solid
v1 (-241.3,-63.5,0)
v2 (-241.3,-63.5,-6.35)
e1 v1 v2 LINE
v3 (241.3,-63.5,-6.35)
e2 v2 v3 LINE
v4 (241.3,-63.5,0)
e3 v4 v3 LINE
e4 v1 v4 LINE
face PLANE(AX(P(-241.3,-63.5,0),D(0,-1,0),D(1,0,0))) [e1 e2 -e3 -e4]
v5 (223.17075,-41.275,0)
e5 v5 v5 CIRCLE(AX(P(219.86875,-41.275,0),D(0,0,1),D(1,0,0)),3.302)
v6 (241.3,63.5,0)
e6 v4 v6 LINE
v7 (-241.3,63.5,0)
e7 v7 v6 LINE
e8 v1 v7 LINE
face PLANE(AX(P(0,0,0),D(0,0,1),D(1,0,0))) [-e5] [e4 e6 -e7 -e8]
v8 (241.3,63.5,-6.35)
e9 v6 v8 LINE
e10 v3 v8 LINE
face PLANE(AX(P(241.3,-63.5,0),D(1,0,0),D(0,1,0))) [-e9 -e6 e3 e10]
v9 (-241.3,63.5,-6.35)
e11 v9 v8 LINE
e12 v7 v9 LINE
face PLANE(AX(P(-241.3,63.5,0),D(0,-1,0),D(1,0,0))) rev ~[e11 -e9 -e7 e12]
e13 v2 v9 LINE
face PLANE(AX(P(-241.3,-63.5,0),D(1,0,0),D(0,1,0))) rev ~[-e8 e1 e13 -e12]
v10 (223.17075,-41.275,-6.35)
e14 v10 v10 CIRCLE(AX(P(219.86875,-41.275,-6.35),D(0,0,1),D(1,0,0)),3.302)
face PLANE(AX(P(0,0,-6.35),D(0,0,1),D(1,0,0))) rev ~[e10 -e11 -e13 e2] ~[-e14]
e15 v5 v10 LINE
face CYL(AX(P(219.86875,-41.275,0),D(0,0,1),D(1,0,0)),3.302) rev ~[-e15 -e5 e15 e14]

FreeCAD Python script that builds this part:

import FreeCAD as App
import Part
import Sketcher
from FreeCAD import Vector
Q = App.Units.Quantity

doc = App.newDocument("Part")
body = doc.addObject("PartDesign::Body", "Body")

# Sketch on XY plane
sketch1 = body.newObject("Sketcher::SketchObject", "Sketch")
sketch1.AttachmentSupport = (doc.getObject("XY_Plane"), [""])
sketch1.MapMode = "FlatFace"
sketch1.addGeometry([
    Part.LineSegment(Vector(-241, 64, 0), Vector(-241, -64, 0)),
    Part.LineSegment(Vector(-241, -64, 0), Vector(241, -64, 0)),
    Part.LineSegment(Vector(241, -64, 0), Vector(241, 64, 0)),
    Part.LineSegment(Vector(241, 64, 0), Vector(-241, 64, 0)),
], False)
sketch1.addConstraint([
    Sketcher.Constraint("Coincident", 0, 2, 1, 1),
    Sketcher.Constraint("Coincident", 1, 2, 2, 1),
    Sketcher.Constraint("Coincident", 2, 2, 3, 1),
    Sketcher.Constraint("Coincident", 3, 2, 0, 1),
    Sketcher.Constraint("Vertical", 0),
    Sketcher.Constraint("Horizontal", 1),
    Sketcher.Constraint("Vertical", 2),
    Sketcher.Constraint("Horizontal", 3),
    Sketcher.Constraint("Symmetric", 0, 2, 2, 2, -1, 1),
    Sketcher.Constraint("DistanceX", 1, 1, 1, 2, Q("19 in")),
    Sketcher.Constraint("DistanceY", 0, 2, 0, 1, Q("5 in")),
])
pad1 = body.newObject("PartDesign::Pad", "Pad")
pad1.Profile = sketch1
pad1.Length = Q("0.25 in")
pad1.Reversed = True

# Sketch on XY plane
sketch2 = body.newObject("Sketcher::SketchObject", "Sketch001")
sketch2.AttachmentSupport = (doc.getObject("XY_Plane"), [""])
sketch2.MapMode = "FlatFace"
sketch2.addGeometry(Part.Circle(Vector(219.9, -41.3, 0), Vector(0, 0, 1), 3.3), False)
sketch2.addConstraint([
    Sketcher.Constraint("Diameter", 0, Q("0.26 in")),
    Sketcher.Constraint("DistanceX", -1, 1, 0, 3, Q("8.65625 in")),
    Sketcher.Constraint("DistanceY", 0, 3, -1, 1, Q("1.625 in")),
])
pocket1 = body.newObject("PartDesign::Pocket", "Pocket")
pocket1.Profile = sketch2
pocket1.Length = Q("0.25 in")

doc.recompute()
